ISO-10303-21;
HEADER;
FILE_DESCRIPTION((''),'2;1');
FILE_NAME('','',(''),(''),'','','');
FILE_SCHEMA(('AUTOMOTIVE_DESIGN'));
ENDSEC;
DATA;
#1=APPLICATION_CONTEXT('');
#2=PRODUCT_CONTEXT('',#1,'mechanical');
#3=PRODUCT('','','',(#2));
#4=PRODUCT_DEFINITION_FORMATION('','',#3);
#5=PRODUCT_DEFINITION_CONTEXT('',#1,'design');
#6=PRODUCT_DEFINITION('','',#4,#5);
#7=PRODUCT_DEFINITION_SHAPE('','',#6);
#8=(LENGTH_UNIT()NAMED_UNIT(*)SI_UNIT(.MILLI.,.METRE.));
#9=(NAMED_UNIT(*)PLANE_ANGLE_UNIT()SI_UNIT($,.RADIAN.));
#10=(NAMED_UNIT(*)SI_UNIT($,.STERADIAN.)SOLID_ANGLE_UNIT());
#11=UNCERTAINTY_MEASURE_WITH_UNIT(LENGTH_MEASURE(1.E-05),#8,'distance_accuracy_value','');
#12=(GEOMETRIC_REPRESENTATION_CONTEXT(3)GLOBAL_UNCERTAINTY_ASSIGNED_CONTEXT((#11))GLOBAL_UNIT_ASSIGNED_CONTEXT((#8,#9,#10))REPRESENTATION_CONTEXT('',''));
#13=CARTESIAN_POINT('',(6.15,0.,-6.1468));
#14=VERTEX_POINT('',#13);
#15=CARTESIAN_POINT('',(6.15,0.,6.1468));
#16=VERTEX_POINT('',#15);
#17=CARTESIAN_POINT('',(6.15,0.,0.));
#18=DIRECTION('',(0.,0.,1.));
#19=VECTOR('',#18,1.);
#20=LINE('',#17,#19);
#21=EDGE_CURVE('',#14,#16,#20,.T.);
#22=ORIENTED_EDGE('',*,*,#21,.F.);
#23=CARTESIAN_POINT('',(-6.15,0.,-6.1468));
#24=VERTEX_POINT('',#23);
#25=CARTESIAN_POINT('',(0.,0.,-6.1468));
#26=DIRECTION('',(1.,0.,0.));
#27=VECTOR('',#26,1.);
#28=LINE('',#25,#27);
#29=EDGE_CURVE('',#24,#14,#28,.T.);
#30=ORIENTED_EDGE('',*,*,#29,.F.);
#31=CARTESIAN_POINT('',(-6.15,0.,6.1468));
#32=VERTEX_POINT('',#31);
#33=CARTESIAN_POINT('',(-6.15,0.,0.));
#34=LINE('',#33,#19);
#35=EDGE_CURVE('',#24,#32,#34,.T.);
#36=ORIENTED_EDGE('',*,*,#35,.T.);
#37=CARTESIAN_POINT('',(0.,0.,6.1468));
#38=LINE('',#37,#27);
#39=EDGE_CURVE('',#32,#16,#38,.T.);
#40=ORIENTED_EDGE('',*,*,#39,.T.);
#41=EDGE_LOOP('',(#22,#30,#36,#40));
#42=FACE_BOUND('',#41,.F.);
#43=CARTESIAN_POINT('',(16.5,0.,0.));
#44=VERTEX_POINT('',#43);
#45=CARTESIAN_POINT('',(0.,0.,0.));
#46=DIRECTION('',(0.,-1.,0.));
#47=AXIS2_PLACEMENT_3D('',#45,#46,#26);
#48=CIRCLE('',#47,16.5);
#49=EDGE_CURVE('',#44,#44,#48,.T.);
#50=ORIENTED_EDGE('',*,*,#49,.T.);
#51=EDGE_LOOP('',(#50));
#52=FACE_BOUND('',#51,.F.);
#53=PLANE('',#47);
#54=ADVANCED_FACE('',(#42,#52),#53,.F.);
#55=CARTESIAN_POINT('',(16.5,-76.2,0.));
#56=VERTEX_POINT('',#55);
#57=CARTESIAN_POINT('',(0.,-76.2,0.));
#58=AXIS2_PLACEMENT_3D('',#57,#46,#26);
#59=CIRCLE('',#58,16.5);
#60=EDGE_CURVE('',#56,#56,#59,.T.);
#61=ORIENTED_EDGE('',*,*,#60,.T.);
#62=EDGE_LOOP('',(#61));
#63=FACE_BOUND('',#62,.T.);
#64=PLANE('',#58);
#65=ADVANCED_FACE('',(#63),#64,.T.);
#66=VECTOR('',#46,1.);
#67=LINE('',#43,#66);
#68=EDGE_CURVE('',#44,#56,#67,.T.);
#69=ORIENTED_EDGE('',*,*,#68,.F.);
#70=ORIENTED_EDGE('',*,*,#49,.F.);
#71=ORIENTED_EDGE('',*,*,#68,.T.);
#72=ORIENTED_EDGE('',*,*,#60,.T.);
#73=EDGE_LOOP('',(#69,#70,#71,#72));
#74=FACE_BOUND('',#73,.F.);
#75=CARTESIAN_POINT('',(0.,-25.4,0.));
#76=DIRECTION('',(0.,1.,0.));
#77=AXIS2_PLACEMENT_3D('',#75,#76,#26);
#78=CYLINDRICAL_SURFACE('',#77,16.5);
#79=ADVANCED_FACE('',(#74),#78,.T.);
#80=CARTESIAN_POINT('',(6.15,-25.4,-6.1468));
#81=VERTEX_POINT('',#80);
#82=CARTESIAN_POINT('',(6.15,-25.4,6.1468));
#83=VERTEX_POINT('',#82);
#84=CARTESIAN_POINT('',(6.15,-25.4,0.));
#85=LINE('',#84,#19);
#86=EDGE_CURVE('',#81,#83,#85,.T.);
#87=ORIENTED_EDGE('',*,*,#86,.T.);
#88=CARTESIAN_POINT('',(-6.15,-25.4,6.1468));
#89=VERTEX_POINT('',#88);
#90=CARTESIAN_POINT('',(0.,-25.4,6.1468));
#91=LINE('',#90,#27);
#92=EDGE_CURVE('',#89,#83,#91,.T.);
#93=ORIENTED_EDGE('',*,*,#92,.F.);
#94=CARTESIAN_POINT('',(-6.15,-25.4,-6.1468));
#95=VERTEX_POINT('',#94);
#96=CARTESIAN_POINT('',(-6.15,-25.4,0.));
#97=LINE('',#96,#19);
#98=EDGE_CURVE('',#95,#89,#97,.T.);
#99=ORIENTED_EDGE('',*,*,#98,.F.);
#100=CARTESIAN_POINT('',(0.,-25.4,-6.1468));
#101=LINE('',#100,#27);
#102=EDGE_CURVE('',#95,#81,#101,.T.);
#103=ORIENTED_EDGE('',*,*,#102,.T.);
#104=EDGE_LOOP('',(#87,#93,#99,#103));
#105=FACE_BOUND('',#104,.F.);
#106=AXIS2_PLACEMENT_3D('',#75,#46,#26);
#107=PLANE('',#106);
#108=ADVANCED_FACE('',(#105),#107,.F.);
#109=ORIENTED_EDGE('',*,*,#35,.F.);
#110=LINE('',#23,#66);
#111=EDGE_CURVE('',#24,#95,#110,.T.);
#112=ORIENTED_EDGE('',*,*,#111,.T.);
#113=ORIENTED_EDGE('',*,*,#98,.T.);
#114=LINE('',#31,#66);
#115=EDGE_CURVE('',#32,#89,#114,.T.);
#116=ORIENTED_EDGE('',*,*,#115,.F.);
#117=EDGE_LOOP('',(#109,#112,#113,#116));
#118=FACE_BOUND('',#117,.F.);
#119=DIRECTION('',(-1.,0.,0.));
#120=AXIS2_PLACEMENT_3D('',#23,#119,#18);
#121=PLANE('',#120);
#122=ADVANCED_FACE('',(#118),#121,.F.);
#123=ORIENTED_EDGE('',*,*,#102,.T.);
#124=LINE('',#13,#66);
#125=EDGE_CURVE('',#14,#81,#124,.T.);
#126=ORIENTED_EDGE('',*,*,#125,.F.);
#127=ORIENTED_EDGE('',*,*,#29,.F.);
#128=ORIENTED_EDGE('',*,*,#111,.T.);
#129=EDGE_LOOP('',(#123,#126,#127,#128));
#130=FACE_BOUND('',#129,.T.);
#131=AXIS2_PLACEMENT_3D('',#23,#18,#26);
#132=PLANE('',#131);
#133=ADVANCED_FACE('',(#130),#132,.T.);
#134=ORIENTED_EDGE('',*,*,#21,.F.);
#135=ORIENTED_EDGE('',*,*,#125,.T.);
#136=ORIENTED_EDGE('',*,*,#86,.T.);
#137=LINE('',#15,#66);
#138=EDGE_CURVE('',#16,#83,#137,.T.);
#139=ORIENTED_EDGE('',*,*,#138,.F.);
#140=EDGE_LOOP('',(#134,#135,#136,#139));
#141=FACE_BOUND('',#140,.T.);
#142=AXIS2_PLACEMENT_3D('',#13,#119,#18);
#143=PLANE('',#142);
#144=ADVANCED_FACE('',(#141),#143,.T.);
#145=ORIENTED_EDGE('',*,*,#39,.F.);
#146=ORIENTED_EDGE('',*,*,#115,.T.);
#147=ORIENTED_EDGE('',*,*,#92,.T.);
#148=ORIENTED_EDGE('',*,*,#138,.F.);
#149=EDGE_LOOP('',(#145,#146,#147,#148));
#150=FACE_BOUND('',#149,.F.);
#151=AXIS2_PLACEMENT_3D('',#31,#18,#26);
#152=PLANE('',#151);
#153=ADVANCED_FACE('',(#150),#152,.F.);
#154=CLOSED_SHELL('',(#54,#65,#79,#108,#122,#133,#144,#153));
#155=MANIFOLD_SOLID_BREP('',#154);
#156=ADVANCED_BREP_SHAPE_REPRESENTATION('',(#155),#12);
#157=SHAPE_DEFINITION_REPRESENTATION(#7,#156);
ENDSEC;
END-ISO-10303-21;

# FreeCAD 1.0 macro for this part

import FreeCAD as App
import Part
import Sketcher
from FreeCAD import Vector
Q = App.Units.Quantity

doc = App.newDocument("Part")
body = doc.addObject("PartDesign::Body", "Body")

sketch1 = body.newObject("Sketcher::SketchObject", "Sketch")
sketch1.AttachmentSupport = (doc.getObject("XZ_Plane"), [""])
sketch1.MapMode = "FlatFace"
sketch1.addGeometry([
    Part.Circle(Vector(0, 0, 0), Vector(0, 0, 1), 16),
    Part.LineSegment(Vector(6, -6, 0), Vector(-6, -6, 0)),
    Part.LineSegment(Vector(-6, -6, 0), Vector(-6, 6, 0)),
    Part.LineSegment(Vector(-6, 6, 0), Vector(6, 6, 0)),
    Part.LineSegment(Vector(6, 6, 0), Vector(6, -6, 0)),
], False)
sketch1.addConstraint([
    Sketcher.Constraint("Coincident", 1, 2, 2, 1),
    Sketcher.Constraint("Coincident", 2, 2, 3, 1),
    Sketcher.Constraint("Coincident", 3, 2, 4, 1),
    Sketcher.Constraint("Coincident", 4, 2, 1, 1),
    Sketcher.Constraint("Horizontal", 1),
    Sketcher.Constraint("Vertical", 2),
    Sketcher.Constraint("Horizontal", 3),
    Sketcher.Constraint("Vertical", 4),
    Sketcher.Constraint("Coincident", 0, 3, -1, 1),
    Sketcher.Constraint("Symmetric", 1, 2, 3, 2, -1, 1),
    Sketcher.Constraint("Diameter", 0, Q("33 mm")),
    Sketcher.Constraint("DistanceY", 2, 1, 2, 2, Q("0.484 in")),
    Sketcher.Constraint("DistanceX", 1, 2, 1, 1, Q("12.3 mm")),
])
pad1 = body.newObject("PartDesign::Pad", "Pad")
pad1.Profile = sketch1
pad1.Length = Q("1 in")

sketch2 = body.newObject("Sketcher::SketchObject", "Sketch001")
sketch2.AttachmentSupport = (doc.getObject("XZ_Plane"), [""])
sketch2.MapMode = "FlatFace"
sketch2.AttachmentOffset = App.Placement(Vector(0, 0, 1 * 25.4), App.Rotation())
sketch2.addGeometry(Part.Circle(Vector(0, 0, 0), Vector(0, 0, 1), 16), False)
sketch2.addConstraint([
    Sketcher.Constraint("Coincident", 0, 3, -1, 1),
    Sketcher.Constraint("Diameter", 0, Q("33 mm")),
])
pad2 = body.newObject("PartDesign::Pad", "Pad001")
pad2.Profile = sketch2
pad2.Length = Q("2 in")

doc.recompute()
